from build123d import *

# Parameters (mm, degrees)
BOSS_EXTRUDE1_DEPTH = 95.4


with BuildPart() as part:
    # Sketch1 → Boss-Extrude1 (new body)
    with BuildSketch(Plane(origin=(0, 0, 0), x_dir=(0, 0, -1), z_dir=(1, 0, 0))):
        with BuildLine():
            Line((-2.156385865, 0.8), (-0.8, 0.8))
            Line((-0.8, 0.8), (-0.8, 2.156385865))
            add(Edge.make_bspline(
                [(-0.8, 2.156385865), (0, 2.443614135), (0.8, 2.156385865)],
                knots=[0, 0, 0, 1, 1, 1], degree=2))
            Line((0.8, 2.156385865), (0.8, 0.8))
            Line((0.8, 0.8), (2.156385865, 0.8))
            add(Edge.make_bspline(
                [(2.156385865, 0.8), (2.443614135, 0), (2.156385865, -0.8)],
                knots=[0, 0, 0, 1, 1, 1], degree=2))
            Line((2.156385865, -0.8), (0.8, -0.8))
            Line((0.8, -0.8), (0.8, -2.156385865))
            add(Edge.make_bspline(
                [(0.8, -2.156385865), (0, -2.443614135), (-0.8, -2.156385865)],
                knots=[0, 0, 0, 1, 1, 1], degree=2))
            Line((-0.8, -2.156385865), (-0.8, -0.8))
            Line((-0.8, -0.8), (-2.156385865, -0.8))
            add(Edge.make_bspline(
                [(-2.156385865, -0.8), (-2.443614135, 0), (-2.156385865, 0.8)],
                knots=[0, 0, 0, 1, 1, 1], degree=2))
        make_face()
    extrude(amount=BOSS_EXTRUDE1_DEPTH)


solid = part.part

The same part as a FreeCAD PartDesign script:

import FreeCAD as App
import Part
import Sketcher

doc = App.newDocument("Part")
body = doc.addObject("PartDesign::Body", "Body")

sketch1 = body.newObject("Sketcher::SketchObject", "Sketch")
sketch1.AttachmentSupport = (doc.getObject("YZ_Plane"), [""])
sketch1.MapMode = "FlatFace"
sketch1.addGeometry([
    Part.LineSegment(App.Vector(0.8, 0.8, 0), App.Vector(0.8, 2.156386, 0)),
    Part.BSplineCurve([App.Vector(-0.8, 2.156386, 0), App.Vector(0, 2.443614, 0), App.Vector(0.8, 2.156386, 0)], [3, 3], [0, 1], False, 2, [1, 1, 1], False),
    Part.LineSegment(App.Vector(-0.8, 2.156386, 0), App.Vector(-0.8, 0.8, 0)),
    Part.LineSegment(App.Vector(-0.8, 0.8, 0), App.Vector(-2.156386, 0.8, 0)),
    Part.BSplineCurve([App.Vector(-2.156386, -0.8, 0), App.Vector(-2.443614, 0, 0), App.Vector(-2.156386, 0.8, 0)], [3, 3], [0, 1], False, 2, [1, 1, 1], False),
    Part.LineSegment(App.Vector(-2.156386, -0.8, 0), App.Vector(-0.8, -0.8, 0)),
    Part.LineSegment(App.Vector(-0.8, -0.8, 0), App.Vector(-0.8, -2.156386, 0)),
    Part.BSplineCurve([App.Vector(0.8, -2.156386, 0), App.Vector(0, -2.443614, 0), App.Vector(-0.8, -2.156386, 0)], [3, 3], [0, 1], False, 2, [1, 1, 1], False),
    Part.LineSegment(App.Vector(0.8, -2.156386, 0), App.Vector(0.8, -0.8, 0)),
    Part.LineSegment(App.Vector(0.8, -0.8, 0), App.Vector(2.156386, -0.8, 0)),
    Part.BSplineCurve([App.Vector(2.156386, 0.8, 0), App.Vector(2.443614, 0, 0), App.Vector(2.156386, -0.8, 0)], [3, 3], [0, 1], False, 2, [1, 1, 1], False),
    Part.LineSegment(App.Vector(2.156386, 0.8, 0), App.Vector(0.8, 0.8, 0)),
], False)
sketch1.addConstraint([
    Sketcher.Constraint("Block", 1),
    Sketcher.Constraint("Block", 4),
    Sketcher.Constraint("Block", 7),
    Sketcher.Constraint("Block", 10),
    Sketcher.Constraint("Coincident", 0, 2, 1, 2),
    Sketcher.Constraint("Coincident", 1, 1, 2, 1),
    Sketcher.Constraint("Coincident", 2, 2, 3, 1),
    Sketcher.Constraint("Coincident", 3, 2, 4, 2),
    Sketcher.Constraint("Coincident", 4, 1, 5, 1),
    Sketcher.Constraint("Coincident", 5, 2, 6, 1),
    Sketcher.Constraint("Coincident", 6, 2, 7, 2),
    Sketcher.Constraint("Coincident", 7, 1, 8, 1),
    Sketcher.Constraint("Coincident", 8, 2, 9, 1),
    Sketcher.Constraint("Coincident", 9, 2, 10, 2),
    Sketcher.Constraint("Coincident", 10, 1, 11, 1),
    Sketcher.Constraint("Coincident", 11, 2, 0, 1),
    Sketcher.Constraint("Vertical", 0),
    Sketcher.Constraint("Vertical", 2),
    Sketcher.Constraint("Horizontal", 3),
    Sketcher.Constraint("Horizontal", 5),
    Sketcher.Constraint("Vertical", 6),
    Sketcher.Constraint("Vertical", 8),
    Sketcher.Constraint("Horizontal", 9),
    Sketcher.Constraint("Horizontal", 11),
])
pad1 = body.newObject("PartDesign::Pad", "Pad")
pad1.Profile = sketch1
pad1.Length = 95.4

doc.recompute()
